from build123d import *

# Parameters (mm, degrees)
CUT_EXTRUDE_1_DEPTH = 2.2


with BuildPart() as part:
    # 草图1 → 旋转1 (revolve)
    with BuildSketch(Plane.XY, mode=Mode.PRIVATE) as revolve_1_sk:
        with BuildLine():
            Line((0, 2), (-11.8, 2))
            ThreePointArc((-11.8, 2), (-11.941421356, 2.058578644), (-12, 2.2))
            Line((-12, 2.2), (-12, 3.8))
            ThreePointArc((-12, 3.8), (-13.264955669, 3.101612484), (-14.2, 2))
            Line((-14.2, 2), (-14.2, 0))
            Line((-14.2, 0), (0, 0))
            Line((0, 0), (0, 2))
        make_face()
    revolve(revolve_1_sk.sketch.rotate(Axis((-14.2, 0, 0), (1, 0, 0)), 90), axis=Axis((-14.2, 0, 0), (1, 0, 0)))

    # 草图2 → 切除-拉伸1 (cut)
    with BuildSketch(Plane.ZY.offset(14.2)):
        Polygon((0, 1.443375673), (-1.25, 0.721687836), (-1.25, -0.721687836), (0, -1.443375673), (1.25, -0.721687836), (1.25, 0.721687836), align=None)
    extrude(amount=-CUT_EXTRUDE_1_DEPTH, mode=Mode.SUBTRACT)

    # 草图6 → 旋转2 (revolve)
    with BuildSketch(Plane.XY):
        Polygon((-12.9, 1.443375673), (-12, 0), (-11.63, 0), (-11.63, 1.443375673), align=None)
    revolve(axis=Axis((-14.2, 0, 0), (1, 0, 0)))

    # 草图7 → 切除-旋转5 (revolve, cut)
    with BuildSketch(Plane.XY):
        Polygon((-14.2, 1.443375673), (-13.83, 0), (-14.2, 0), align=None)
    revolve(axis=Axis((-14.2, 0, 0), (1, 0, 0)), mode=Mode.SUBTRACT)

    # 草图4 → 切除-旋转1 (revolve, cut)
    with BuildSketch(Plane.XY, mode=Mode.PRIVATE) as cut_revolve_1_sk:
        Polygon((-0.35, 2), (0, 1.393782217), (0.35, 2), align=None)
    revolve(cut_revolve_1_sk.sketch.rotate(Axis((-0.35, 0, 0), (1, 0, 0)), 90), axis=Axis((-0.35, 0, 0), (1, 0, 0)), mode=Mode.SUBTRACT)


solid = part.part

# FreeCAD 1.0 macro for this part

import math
import FreeCAD as App
import Part
import Sketcher
Q = App.Units.Quantity


def add_polygon(sketch, points):
    """Adds a closed chain of lines whose ends are joined by coincident constraints."""
    first, n = sketch.GeometryCount, len(points)
    for a, b in zip(points, points[1:] + points[:1]):
        sketch.addGeometry(Part.LineSegment(App.Vector(*a, 0), App.Vector(*b, 0)), False)
    for i in range(n):
        sketch.addConstraint(Sketcher.Constraint("Coincident", first + i, 2, first + (i + 1) % n, 1))

doc = App.newDocument("Part")
params = doc.addObject("Spreadsheet::Sheet", "Params")
for row, (alias, value) in enumerate([
    ("sketch1_radius", "0.2 mm"),
    ("sketch1_height", "2 mm"),
    ("sketch1_width", "11.8 mm"),
    ("sketch1_width2", "14.2 mm"),
    ("sketch1_height2", "1.6 mm"),
    ("revolution_angle", "360 deg"),
    ("pocket1_length", "2.2 mm"),
    ("sketch3_width", "0.37 mm"),
    ("sketch3_width2", "1.27 mm"),
    ("revolution2_angle", "360 deg"),
    ("sketch4_width", "0.37 mm"),
    ("groove_angle", "360 deg"),
    ("sketch5_width", "0.7 mm"),
    ("groove2_angle", "360 deg"),
], start=1):
    params.set(f"A{row}", alias)
    params.set(f"B{row}", "=" + value)
    params.setAlias(f"B{row}", alias)

body = doc.addObject("PartDesign::Body", "Body")

sketch1 = body.newObject("Sketcher::SketchObject", "Sketch")
sketch1.AttachmentSupport = (doc.getObject("XY_Plane"), [""])
sketch1.MapMode = "FlatFace"
sketch1.addGeometry(Part.LineSegment(App.Vector(0, 2, 0), App.Vector(-11.8, 2, 0)), False)
sketch1.addGeometry(Part.ArcOfCircle(Part.Circle(App.Vector(-11.8, 2.2, 0), App.Vector(0, 0, 1), 0.2), math.radians(-180), math.radians(-90)), False)
sketch1.addGeometry(Part.LineSegment(App.Vector(-12, 2.2, 0), App.Vector(-12, 3.8, 0)), False)
sketch1.addGeometry(Part.ArcOfCircle(Part.Circle(App.Vector(-10.73, 0, 0), App.Vector(0, 0, 1), 4.01), math.radians(109), math.radians(150)), False)
sketch1.addGeometry(Part.LineSegment(App.Vector(-14.2, 2, 0), App.Vector(-14.2, 0, 0)), False)
sketch1.addGeometry(Part.LineSegment(App.Vector(-14.2, 0, 0), App.Vector(0, 0, 0)), False)
sketch1.addGeometry(Part.LineSegment(App.Vector(0, 0, 0), App.Vector(0, 2, 0)), False)
sketch1.addConstraint(Sketcher.Constraint("Tangent", 0, 2, 1, 2))
sketch1.addConstraint(Sketcher.Constraint("Tangent", 1, 1, 2, 1))
sketch1.addConstraint(Sketcher.Constraint("Coincident", 2, 2, 3, 1))
sketch1.addConstraint(Sketcher.Constraint("Coincident", 3, 2, 4, 1))
sketch1.addConstraint(Sketcher.Constraint("Coincident", 4, 2, 5, 1))
sketch1.addConstraint(Sketcher.Constraint("Coincident", 5, 2, 6, 1))
sketch1.addConstraint(Sketcher.Constraint("Coincident", 6, 2, 0, 1))
sketch1.addConstraint(Sketcher.Constraint("Horizontal", 0))
sketch1.addConstraint(Sketcher.Constraint("Vertical", 2))
sketch1.addConstraint(Sketcher.Constraint("Vertical", 4))
sketch1.addConstraint(Sketcher.Constraint("Horizontal", 5))
sketch1.addConstraint(Sketcher.Constraint("Vertical", 6))
sketch1.addConstraint(Sketcher.Constraint("Coincident", 5, 2, -1, 1))
sketch1.addConstraint(Sketcher.Constraint("PointOnObject", 3, 3, -1))
sketch1.addConstraint(Sketcher.Constraint("Horizontal", 0, 2, 3, 2))
sketch1.addConstraint(Sketcher.Constraint("Radius", 1, Q("0.2 mm")))
sketch1.addConstraint(Sketcher.Constraint("DistanceY", 4, 2, 4, 1, Q("2 mm")))
sketch1.addConstraint(Sketcher.Constraint("DistanceX", 0, 2, 0, 1, Q("11.8 mm")))
sketch1.addConstraint(Sketcher.Constraint("DistanceX", 5, 1, 5, 2, Q("14.2 mm")))
sketch1.addConstraint(Sketcher.Constraint("DistanceY", 2, 1, 2, 2, Q("1.6 mm")))
sketch1.setExpression("Constraints[15]", "Params.sketch1_radius")
sketch1.setExpression("Constraints[16]", "Params.sketch1_height")
sketch1.setExpression("Constraints[17]", "Params.sketch1_width")
sketch1.setExpression("Constraints[18]", "Params.sketch1_width2")
sketch1.setExpression("Constraints[19]", "Params.sketch1_height2")
revolution = body.newObject("PartDesign::Revolution", "Revolution")
revolution.Profile = sketch1
revolution.ReferenceAxis = (sketch1, ["H_Axis"])
revolution.setExpression("Angle", "Params.revolution_angle")

sketch2 = body.newObject("Sketcher::SketchObject", "Sketch001")
sketch2.AttachmentSupport = (doc.getObject("YZ_Plane"), [""])
sketch2.MapMode = "FlatFace"
sketch2.AttachmentOffset = App.Placement(App.Vector(0, 0, -14.2), App.Rotation())
add_polygon(sketch2, [(1.4, 0), (0.7, -1.2), (-0.7, -1.2), (-1.4, 0), (-0.7, 1.2), (0.7, 1.2)])
sketch2.addConstraint(Sketcher.Constraint("Horizontal", 1))
sketch2.addConstraint(Sketcher.Constraint("Horizontal", 4))
sketch2.addConstraint(Sketcher.Constraint("Symmetric", 0, 2, 3, 2, -1, 1))
sketch2.addConstraint(Sketcher.Constraint("Symmetric", 2, 2, 5, 2, -1, 1))
sketch2.addConstraint(Sketcher.Constraint("PointOnObject", 2, 2, -1))
sketch2.addConstraint(Sketcher.Constraint("Parallel", 2, 5))
sketch2.addConstraint(Sketcher.Constraint("Vertical", 1, 2, 3, 2))
sketch2.addConstraint(Sketcher.Constraint("Angle", 0, Q("-120 deg")))
sketch2.addConstraint(Sketcher.Constraint("DistanceY", 1, 2, 3, 2, Q("2.5 mm")))
sketch2.addConstraint(Sketcher.Constraint("DistanceX", 1, 2, 1, 1, Q("1.443376 mm")))
pocket1 = body.newObject("PartDesign::Pocket", "Pocket")
pocket1.Profile = sketch2
pocket1.setExpression("Length", "Params.pocket1_length")
pocket1.Reversed = True

sketch3 = body.newObject("Sketcher::SketchObject", "Sketch002")
sketch3.AttachmentSupport = (doc.getObject("XY_Plane"), [""])
sketch3.MapMode = "FlatFace"
add_polygon(sketch3, [(-12.9, 1.44), (-12, 0), (-11.63, 0), (-11.63, 1.44)])
sketch3.addConstraint(Sketcher.Constraint("Horizontal", 1))
sketch3.addConstraint(Sketcher.Constraint("Vertical", 2))
sketch3.addConstraint(Sketcher.Constraint("Horizontal", 3))
sketch3.addConstraint(Sketcher.Constraint("PointOnObject", 0, 2, -1))
sketch3.addConstraint(Sketcher.Constraint("DistanceX", 0, 2, -1, 1, Q("12 mm")))
sketch3.addConstraint(Sketcher.Constraint("DistanceX", 1, 1, 1, 2, Q("0.37 mm")))
sketch3.addConstraint(Sketcher.Constraint("DistanceX", 3, 2, 3, 1, Q("1.27 mm")))
sketch3.addConstraint(Sketcher.Constraint("Distance", 0, Q("1.70098 mm")))
sketch3.setExpression("Constraints[9]", "Params.sketch3_width")
sketch3.setExpression("Constraints[10]", "Params.sketch3_width2")
revolution2 = body.newObject("PartDesign::Revolution", "Revolution001")
revolution2.Profile = sketch3
revolution2.ReferenceAxis = (sketch3, ["H_Axis"])
revolution2.setExpression("Angle", "Params.revolution2_angle")

sketch4 = body.newObject("Sketcher::SketchObject", "Sketch003")
sketch4.AttachmentSupport = (doc.getObject("XY_Plane"), [""])
sketch4.MapMode = "FlatFace"
add_polygon(sketch4, [(-13.83, 0), (-14.2, 1.44), (-14.2, 0)])
sketch4.addConstraint(Sketcher.Constraint("Vertical", 1))
sketch4.addConstraint(Sketcher.Constraint("Horizontal", 2))
sketch4.addConstraint(Sketcher.Constraint("PointOnObject", 1, 2, -1))
sketch4.addConstraint(Sketcher.Constraint("DistanceX", 2, 1, 2, 2, Q("0.37 mm")))
sketch4.addConstraint(Sketcher.Constraint("DistanceX", 0, 2, -1, 1, Q("14.2 mm")))
sketch4.addConstraint(Sketcher.Constraint("DistanceY", 1, 2, 1, 1, Q("1.443376 mm")))
sketch4.setExpression("Constraints[6]", "Params.sketch4_width")
groove = body.newObject("PartDesign::Groove", "Groove")
groove.Profile = sketch4
groove.ReferenceAxis = (sketch4, ["H_Axis"])
groove.setExpression("Angle", "Params.groove_angle")

sketch5 = body.newObject("Sketcher::SketchObject", "Sketch004")
sketch5.AttachmentSupport = (doc.getObject("XY_Plane"), [""])
sketch5.MapMode = "FlatFace"
add_polygon(sketch5, [(-0.3, 2), (0, 1.4), (0.3, 2)])
sketch5.addConstraint(Sketcher.Constraint("Horizontal", 2))
sketch5.addConstraint(Sketcher.Constraint("PointOnObject", 0, 2, -2))
sketch5.addConstraint(Sketcher.Constraint("Equal", 0, 1))
sketch5.addConstraint(Sketcher.Constraint("Angle", 0, Q("-60 deg")))
sketch5.addConstraint(Sketcher.Constraint("DistanceX", 2, 2, 2, 1, Q("0.7 mm")))
sketch5.addConstraint(Sketcher.Constraint("DistanceY", -1, 1, 1, 2, Q("2 mm")))
sketch5.setExpression("Constraints[7]", "Params.sketch5_width")
groove2 = body.newObject("PartDesign::Groove", "Groove001")
groove2.Profile = sketch5
groove2.ReferenceAxis = (sketch5, ["H_Axis"])
groove2.setExpression("Angle", "Params.groove2_angle")

doc.recompute()
